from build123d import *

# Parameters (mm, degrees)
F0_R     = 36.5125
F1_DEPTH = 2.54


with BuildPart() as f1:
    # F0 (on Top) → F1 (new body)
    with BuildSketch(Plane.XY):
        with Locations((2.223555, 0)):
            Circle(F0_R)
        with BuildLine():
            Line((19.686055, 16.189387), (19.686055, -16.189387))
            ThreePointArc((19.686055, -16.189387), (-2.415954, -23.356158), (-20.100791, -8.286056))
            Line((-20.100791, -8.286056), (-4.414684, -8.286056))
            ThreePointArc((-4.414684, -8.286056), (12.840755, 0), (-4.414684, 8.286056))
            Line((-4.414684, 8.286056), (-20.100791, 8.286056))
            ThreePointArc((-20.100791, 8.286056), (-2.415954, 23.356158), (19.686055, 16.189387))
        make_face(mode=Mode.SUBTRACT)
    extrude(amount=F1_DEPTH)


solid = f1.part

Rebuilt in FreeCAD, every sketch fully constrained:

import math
import FreeCAD as App
import Part
import Sketcher
from FreeCAD import Vector
Q = App.Units.Quantity

doc = App.newDocument("Part")
body = doc.addObject("PartDesign::Body", "Body")

# Sketch on XY plane
sketch1 = doc.addObject("Sketcher::SketchObject", "Sketch")
body.addObject(sketch1)
sketch1.AttachmentSupport = (doc.XY_Plane, [""])
sketch1.MapMode = "FlatFace"
sketch1.addGeometry([
    Part.Circle(Vector(2, 0, 0), Vector(0, 0, 1), 37),  # 0
    Part.ArcOfCircle(Part.Circle(Vector(2, 0, 0), Vector(0, 0, 1), 24), math.radians(43), math.radians(160)),  # 1
    Part.LineSegment(Vector(20, 16, 0), Vector(20, -16, 0)),  # 2
    Part.ArcOfCircle(Part.Circle(Vector(2, 0, 0), Vector(0, 0, 1), 24), math.radians(-160), math.radians(-43)),  # 3
    Part.LineSegment(Vector(-20, -8, 0), Vector(-4, -8, 0)),  # 4
    Part.ArcOfCircle(Part.Circle(Vector(2, 0, 0), Vector(0, 0, 1), 11), math.radians(-129), math.radians(129)),  # 5
    Part.LineSegment(Vector(-4, 8, 0), Vector(-20, 8, 0)),  # 6
], False)
sketch1.addConstraint([
    Sketcher.Constraint("Coincident", 1, 1, 2, 1),
    Sketcher.Constraint("Coincident", 2, 2, 3, 2),
    Sketcher.Constraint("Coincident", 3, 1, 4, 1),
    Sketcher.Constraint("Coincident", 4, 2, 5, 1),
    Sketcher.Constraint("Coincident", 5, 2, 6, 1),
    Sketcher.Constraint("Coincident", 6, 2, 1, 2),
    Sketcher.Constraint("Vertical", 2),
    Sketcher.Constraint("Horizontal", 4),
    Sketcher.Constraint("Horizontal", 6),
    Sketcher.Constraint("Coincident", 1, 3, 0, 3),
    Sketcher.Constraint("Coincident", 3, 3, 0, 3),
    Sketcher.Constraint("Coincident", 5, 3, 0, 3),
    Sketcher.Constraint("Equal", 1, 3),
    Sketcher.Constraint("Symmetric", 4, 2, 5, 2, -1),
    Sketcher.Constraint("Diameter", 0, Q("2.875 in")),
    Sketcher.Constraint("Radius", 1, Q("0.9375 in")),
    Sketcher.Constraint("Radius", 5, Q("0.418 in")),
    Sketcher.Constraint("DistanceX", 1, 3, 1, 1, Q("0.6875 in")),
    Sketcher.Constraint("DistanceX", 4, 1, 4, 2, 15.686107),
    Sketcher.Constraint("DistanceX", 3, 1, -1, 1, 20.100791),
])
pad1 = doc.addObject("PartDesign::Pad", "Pad")
body.addObject(pad1)
pad1.Profile = sketch1
pad1.Length = Q("0.1 in")

doc.recompute()
